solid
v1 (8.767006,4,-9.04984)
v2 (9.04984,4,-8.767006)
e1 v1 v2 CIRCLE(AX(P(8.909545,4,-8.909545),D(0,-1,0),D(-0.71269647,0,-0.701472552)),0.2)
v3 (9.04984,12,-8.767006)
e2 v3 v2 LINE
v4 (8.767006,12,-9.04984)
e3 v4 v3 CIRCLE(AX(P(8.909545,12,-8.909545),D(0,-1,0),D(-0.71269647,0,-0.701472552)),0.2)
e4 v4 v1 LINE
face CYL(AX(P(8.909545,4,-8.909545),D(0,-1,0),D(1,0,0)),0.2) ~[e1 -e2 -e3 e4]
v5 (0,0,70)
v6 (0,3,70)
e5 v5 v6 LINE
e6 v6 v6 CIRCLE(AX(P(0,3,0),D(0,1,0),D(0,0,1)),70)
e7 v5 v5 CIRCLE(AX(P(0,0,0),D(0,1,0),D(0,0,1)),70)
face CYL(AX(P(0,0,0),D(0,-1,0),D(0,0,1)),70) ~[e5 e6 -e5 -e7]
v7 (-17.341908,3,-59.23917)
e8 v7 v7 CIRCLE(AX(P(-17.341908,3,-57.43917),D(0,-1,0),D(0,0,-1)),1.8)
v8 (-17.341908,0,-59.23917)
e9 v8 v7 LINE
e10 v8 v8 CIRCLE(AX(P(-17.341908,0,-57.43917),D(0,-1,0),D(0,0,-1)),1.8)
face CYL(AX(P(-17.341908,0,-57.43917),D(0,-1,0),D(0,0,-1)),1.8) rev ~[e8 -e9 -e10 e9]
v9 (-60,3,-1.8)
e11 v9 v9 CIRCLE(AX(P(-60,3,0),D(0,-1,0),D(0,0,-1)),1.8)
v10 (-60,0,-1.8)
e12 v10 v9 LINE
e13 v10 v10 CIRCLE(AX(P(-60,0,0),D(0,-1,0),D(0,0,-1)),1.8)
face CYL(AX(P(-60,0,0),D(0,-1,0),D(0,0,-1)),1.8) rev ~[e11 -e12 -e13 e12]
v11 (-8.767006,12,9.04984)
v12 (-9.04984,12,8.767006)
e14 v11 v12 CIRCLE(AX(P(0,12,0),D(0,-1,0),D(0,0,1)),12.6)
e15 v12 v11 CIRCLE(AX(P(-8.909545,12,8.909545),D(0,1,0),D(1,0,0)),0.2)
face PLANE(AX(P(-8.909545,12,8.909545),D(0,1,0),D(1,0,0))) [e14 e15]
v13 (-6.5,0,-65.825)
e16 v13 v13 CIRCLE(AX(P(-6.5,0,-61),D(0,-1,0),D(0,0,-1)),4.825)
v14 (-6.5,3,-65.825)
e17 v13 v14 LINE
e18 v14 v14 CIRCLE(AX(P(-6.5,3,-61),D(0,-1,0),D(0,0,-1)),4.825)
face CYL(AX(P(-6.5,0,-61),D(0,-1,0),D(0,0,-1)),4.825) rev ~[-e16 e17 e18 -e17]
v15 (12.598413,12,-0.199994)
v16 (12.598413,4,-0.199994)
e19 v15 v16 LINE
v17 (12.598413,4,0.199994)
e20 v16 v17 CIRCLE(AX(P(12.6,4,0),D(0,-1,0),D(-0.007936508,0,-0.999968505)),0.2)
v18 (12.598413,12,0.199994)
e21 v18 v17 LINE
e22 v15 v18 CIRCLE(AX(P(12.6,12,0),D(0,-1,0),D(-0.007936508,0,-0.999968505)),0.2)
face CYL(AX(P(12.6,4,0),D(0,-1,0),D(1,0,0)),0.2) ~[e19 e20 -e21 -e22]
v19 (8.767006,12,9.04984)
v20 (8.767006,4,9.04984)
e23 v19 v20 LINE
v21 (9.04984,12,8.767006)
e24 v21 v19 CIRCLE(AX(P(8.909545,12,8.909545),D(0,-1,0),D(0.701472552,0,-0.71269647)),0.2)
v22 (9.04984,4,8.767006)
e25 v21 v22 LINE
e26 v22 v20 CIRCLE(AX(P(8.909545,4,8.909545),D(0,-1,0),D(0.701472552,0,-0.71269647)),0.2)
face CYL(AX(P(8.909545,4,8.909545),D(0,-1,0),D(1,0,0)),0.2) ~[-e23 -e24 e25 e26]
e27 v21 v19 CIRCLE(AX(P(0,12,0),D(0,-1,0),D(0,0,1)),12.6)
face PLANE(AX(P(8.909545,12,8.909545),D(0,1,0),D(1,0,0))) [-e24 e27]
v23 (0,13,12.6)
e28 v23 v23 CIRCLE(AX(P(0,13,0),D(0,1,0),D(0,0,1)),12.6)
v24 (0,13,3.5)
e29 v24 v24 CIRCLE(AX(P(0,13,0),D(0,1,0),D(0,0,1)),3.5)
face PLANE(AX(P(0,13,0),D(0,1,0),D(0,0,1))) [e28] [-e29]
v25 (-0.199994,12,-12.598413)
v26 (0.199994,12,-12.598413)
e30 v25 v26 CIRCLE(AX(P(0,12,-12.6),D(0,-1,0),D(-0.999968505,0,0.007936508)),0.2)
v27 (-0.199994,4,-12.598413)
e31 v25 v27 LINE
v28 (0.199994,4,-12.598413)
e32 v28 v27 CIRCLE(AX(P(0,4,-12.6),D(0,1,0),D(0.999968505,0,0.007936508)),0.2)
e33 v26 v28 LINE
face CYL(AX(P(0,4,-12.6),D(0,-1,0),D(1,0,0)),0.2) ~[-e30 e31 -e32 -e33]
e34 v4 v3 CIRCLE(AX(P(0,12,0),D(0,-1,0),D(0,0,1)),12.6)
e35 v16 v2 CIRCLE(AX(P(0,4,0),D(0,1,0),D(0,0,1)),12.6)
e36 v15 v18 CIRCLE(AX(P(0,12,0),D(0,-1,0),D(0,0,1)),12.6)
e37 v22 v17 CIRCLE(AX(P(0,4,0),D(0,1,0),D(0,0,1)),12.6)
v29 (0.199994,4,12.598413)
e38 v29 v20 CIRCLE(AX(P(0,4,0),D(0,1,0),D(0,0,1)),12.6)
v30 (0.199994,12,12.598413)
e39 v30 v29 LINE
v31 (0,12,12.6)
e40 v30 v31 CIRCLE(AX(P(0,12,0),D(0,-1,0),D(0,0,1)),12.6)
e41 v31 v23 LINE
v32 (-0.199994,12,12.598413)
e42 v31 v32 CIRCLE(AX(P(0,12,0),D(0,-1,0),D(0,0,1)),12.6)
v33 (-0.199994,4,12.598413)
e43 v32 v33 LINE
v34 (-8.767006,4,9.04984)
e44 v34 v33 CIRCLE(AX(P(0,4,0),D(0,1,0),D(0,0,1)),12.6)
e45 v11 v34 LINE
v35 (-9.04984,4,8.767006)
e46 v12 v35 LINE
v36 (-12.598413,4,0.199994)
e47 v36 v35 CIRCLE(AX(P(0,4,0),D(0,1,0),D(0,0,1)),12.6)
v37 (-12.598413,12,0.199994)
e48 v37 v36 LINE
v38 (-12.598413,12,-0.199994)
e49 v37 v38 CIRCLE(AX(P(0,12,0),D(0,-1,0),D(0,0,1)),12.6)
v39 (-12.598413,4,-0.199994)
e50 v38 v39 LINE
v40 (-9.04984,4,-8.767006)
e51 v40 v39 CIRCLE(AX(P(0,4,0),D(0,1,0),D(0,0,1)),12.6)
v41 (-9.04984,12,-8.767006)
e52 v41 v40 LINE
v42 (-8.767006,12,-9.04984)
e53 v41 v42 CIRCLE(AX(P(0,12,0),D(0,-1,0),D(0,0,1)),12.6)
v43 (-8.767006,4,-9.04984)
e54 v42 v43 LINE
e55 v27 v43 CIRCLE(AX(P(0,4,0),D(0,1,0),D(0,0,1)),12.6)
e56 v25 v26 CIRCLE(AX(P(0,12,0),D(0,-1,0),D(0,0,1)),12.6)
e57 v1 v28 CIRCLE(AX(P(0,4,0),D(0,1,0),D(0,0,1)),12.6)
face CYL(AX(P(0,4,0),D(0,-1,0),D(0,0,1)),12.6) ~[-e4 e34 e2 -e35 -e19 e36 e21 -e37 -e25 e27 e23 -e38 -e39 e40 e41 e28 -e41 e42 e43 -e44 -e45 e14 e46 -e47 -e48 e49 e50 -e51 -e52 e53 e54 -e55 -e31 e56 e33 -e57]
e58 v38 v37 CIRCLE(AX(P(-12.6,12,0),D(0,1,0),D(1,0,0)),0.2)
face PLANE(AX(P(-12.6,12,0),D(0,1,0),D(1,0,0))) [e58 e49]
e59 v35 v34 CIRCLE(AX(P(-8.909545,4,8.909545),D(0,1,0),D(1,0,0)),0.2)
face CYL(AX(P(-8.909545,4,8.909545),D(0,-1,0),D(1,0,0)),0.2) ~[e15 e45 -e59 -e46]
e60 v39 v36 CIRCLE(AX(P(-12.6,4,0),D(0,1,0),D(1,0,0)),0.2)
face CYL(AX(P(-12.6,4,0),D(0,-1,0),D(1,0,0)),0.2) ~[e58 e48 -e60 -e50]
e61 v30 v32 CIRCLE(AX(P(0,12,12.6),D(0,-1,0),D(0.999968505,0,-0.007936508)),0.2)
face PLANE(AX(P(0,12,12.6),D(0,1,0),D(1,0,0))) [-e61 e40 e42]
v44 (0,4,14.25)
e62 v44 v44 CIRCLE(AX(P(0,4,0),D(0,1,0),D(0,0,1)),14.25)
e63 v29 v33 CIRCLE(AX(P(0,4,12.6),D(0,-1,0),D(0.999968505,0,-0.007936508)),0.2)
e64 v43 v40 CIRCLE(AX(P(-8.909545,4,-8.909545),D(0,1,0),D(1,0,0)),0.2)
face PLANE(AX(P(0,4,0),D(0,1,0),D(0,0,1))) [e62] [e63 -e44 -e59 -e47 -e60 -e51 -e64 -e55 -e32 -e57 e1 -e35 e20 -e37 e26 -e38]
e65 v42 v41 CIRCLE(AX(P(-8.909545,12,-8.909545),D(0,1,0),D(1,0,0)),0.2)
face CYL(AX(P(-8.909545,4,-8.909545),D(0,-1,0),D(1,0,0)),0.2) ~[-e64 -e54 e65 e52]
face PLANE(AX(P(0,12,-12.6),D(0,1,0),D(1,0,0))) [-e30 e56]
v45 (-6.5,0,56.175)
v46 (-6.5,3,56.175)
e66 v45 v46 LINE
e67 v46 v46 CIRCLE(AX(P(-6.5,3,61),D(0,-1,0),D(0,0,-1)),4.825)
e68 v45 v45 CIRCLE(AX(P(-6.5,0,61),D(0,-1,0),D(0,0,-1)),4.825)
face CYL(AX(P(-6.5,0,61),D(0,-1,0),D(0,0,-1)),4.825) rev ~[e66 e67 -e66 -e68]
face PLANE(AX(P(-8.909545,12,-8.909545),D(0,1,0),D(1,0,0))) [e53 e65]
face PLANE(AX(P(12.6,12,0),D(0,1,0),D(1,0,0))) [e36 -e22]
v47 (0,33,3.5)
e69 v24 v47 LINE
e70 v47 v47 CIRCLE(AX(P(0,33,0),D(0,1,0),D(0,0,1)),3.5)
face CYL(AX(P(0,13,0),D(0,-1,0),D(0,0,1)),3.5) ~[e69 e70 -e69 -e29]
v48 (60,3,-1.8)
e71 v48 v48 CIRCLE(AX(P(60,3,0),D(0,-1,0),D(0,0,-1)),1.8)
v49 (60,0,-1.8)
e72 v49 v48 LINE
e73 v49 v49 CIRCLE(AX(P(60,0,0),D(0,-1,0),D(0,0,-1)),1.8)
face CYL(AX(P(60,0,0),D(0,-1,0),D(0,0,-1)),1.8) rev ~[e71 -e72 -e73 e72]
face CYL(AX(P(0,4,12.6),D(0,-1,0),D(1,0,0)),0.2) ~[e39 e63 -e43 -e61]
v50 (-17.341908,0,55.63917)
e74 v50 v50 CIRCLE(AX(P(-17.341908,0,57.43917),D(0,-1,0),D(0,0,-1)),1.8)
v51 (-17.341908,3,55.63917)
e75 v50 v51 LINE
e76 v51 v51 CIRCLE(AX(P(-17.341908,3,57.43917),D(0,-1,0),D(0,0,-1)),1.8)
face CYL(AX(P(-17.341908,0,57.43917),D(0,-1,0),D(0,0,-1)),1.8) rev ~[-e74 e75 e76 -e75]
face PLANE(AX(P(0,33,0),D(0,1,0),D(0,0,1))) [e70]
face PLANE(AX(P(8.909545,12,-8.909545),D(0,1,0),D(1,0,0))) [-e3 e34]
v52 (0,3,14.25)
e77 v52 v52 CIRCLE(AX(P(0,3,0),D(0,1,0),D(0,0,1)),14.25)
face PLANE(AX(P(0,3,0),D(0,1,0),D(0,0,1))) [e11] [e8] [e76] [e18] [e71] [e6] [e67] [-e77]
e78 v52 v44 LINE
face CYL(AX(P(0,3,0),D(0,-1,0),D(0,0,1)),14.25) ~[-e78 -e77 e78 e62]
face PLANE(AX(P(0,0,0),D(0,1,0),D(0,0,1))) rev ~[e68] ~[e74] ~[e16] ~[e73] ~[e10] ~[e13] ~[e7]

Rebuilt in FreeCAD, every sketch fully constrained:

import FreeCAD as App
import Part
import Sketcher

V = App.Vector

doc = App.newDocument("Part")
body = doc.addObject("PartDesign::Body", "Body")

# Sketch on XZ plane
sketch1 = body.newObject("Sketcher::SketchObject", "Sketch")
sketch1.AttachmentSupport = (doc.getObject("XZ_Plane"), [""])
sketch1.MapMode = "FlatFace"
sketch1.addGeometry(Part.Circle(V(0, 0, 0), V(0, 0, 1), 70), False)
sketch1.addConstraint([
    Sketcher.Constraint("Coincident", 0, 3, -1, 1),
    Sketcher.Constraint("Diameter", 0, 140.0),
])
pad1 = body.newObject("PartDesign::Pad", "Pad")
pad1.Profile = sketch1
pad1.Length = 3
pad1.Reversed = True

# Sketch on XZ plane
sketch2 = body.newObject("Sketcher::SketchObject", "Sketch001")
sketch2.AttachmentSupport = (doc.getObject("XZ_Plane"), [""])
sketch2.MapMode = "FlatFace"
sketch2.AttachmentOffset = App.Placement(V(0, 0, -3), App.Rotation())
sketch2.addGeometry(Part.Circle(V(0, 0, 0), V(0, 0, 1), 14), False)
sketch2.addConstraint([
    Sketcher.Constraint("Coincident", 0, 3, -1, 1),
    Sketcher.Constraint("Diameter", 0, 28.5),
])
pad2 = body.newObject("PartDesign::Pad", "Pad001")
pad2.Profile = sketch2
pad2.Length = 1
pad2.Reversed = True

# Sketch on XZ plane
sketch3 = body.newObject("Sketcher::SketchObject", "Sketch002")
sketch3.AttachmentSupport = (doc.getObject("XZ_Plane"), [""])
sketch3.MapMode = "FlatFace"
sketch3.AttachmentOffset = App.Placement(V(0, 0, -4), App.Rotation())
sketch3.addGeometry(Part.Circle(V(0, 0, 0), V(0, 0, 1), 13), False)
sketch3.addConstraint([
    Sketcher.Constraint("Coincident", 0, 3, -1, 1),
    Sketcher.Constraint("Diameter", 0, 25.2),
])
pad3 = body.newObject("PartDesign::Pad", "Pad002")
pad3.Profile = sketch3
pad3.Length = 9
pad3.Reversed = True

# Sketch on XZ plane
sketch4 = body.newObject("Sketcher::SketchObject", "Sketch003")
sketch4.AttachmentSupport = (doc.getObject("XZ_Plane"), [""])
sketch4.MapMode = "FlatFace"
sketch4.AttachmentOffset = App.Placement(V(0, 0, -4), App.Rotation())
sketch4.addGeometry([
    Part.Circle(V(0, -12.6, 0), V(0, 0, 1), 0.2),  # 0
    Part.Circle(V(8.91, -8.91, 0), V(0, 0, 1), 0.2),  # 1
    Part.Circle(V(12.6, 0, 0), V(0, 0, 1), 0.2),  # 2
    Part.Circle(V(8.91, 8.91, 0), V(0, 0, 1), 0.2),  # 3
    Part.Circle(V(0, 12.6, 0), V(0, 0, 1), 0.2),  # 4
    Part.Circle(V(-8.91, 8.91, 0), V(0, 0, 1), 0.2),  # 5
    Part.Circle(V(-12.6, 0, 0), V(0, 0, 1), 0.2),  # 6
    Part.Circle(V(-8.91, -8.91, 0), V(0, 0, 1), 0.2),  # 7
], False)
sketch4.addConstraint([
    Sketcher.Constraint("Equal", 0, 1),
    Sketcher.Constraint("Equal", 1, 2),
    Sketcher.Constraint("Equal", 2, 3),
    Sketcher.Constraint("Equal", 3, 4),
    Sketcher.Constraint("Equal", 4, 5),
    Sketcher.Constraint("Equal", 5, 6),
    Sketcher.Constraint("Equal", 6, 7),
    Sketcher.Constraint("Symmetric", 0, 3, 4, 3, -1, 1),
    Sketcher.Constraint("Symmetric", 1, 3, 5, 3, -1, 1),
    Sketcher.Constraint("Symmetric", 2, 3, 6, 3, -1, 1),
    Sketcher.Constraint("Symmetric", 3, 3, 7, 3, -1, 1),
    Sketcher.Constraint("Symmetric", 3, 3, 5, 3, -2),
    Sketcher.Constraint("PointOnObject", 0, 3, -2),
    Sketcher.Constraint("PointOnObject", 2, 3, -1),
    Sketcher.Constraint("Diameter", 0, 0.4),
    Sketcher.Constraint("DistanceY", 0, 3, -1, 1, 12.6),
    Sketcher.Constraint("DistanceX", -1, 1, 2, 3, 12.6),
    Sketcher.Constraint("DistanceY", 1, 3, 3, 3, 17.819091),
    Sketcher.Constraint("DistanceX", 5, 3, 3, 3, 17.819091),
])
pad4 = body.newObject("PartDesign::Pad", "Pad003")
pad4.Profile = sketch4
pad4.Length = 8
pad4.Reversed = True

# Sketch on XZ plane
sketch5 = body.newObject("Sketcher::SketchObject", "Sketch004")
sketch5.AttachmentSupport = (doc.getObject("XZ_Plane"), [""])
sketch5.MapMode = "FlatFace"
sketch5.addGeometry([
    Part.Circle(V(-17.3, 57.4, 0), V(0, 0, 1), 1.8),
    Part.Circle(V(-60, 0, 0), V(0, 0, 1), 1.8),
    Part.Circle(V(-17.3, -57.4, 0), V(0, 0, 1), 1.8),
    Part.Circle(V(60, 0, 0), V(0, 0, 1), 1.8),
], False)
sketch5.addConstraint([
    Sketcher.Constraint("Equal", 0, 1),
    Sketcher.Constraint("Equal", 1, 2),
    Sketcher.Constraint("Equal", 2, 3),
    Sketcher.Constraint("Symmetric", 1, 3, 3, 3, -1, 1),
    Sketcher.Constraint("Symmetric", 0, 3, 2, 3, -1),
    Sketcher.Constraint("PointOnObject", 1, 3, -1),
    Sketcher.Constraint("Diameter", 0, 3.6),
    Sketcher.Constraint("DistanceX", 1, 3, -1, 1, 60.0),
    Sketcher.Constraint("DistanceY", -1, 1, 0, 3, 57.43917),
    Sketcher.Constraint("DistanceX", 0, 3, -1, 1, 17.341908),
])
pocket1 = body.newObject("PartDesign::Pocket", "Pocket")
pocket1.Profile = sketch5
pocket1.Type = "ThroughAll"

# Sketch on XZ plane
sketch6 = body.newObject("Sketcher::SketchObject", "Sketch005")
sketch6.AttachmentSupport = (doc.getObject("XZ_Plane"), [""])
sketch6.MapMode = "FlatFace"
sketch6.addGeometry([
    Part.Circle(V(-6.5, 61, 0), V(0, 0, 1), 4.8),
    Part.Circle(V(-6.5, -61, 0), V(0, 0, 1), 4.8),
], False)
sketch6.addConstraint([
    Sketcher.Constraint("Equal", 0, 1),
    Sketcher.Constraint("Symmetric", 0, 3, 1, 3, -1),
    Sketcher.Constraint("Diameter", 0, 9.65),
    Sketcher.Constraint("DistanceY", -1, 1, 0, 3, 61.0),
    Sketcher.Constraint("DistanceX", 0, 3, -1, 1, 6.5),
])
pocket2 = body.newObject("PartDesign::Pocket", "Pocket001")
pocket2.Profile = sketch6
pocket2.Type = "ThroughAll"

# Sketch on XZ plane
sketch7 = body.newObject("Sketcher::SketchObject", "Sketch006")
sketch7.AttachmentSupport = (doc.getObject("XZ_Plane"), [""])
sketch7.MapMode = "FlatFace"
sketch7.AttachmentOffset = App.Placement(V(0, 0, -13), App.Rotation())
sketch7.addGeometry(Part.Circle(V(0, 0, 0), V(0, 0, 1), 3.5), False)
sketch7.addConstraint([
    Sketcher.Constraint("Coincident", 0, 3, -1, 1),
    Sketcher.Constraint("Diameter", 0, 7.0),
])
pad5 = body.newObject("PartDesign::Pad", "Pad004")
pad5.Profile = sketch7
pad5.Length = 20
pad5.Reversed = True

doc.recompute()
